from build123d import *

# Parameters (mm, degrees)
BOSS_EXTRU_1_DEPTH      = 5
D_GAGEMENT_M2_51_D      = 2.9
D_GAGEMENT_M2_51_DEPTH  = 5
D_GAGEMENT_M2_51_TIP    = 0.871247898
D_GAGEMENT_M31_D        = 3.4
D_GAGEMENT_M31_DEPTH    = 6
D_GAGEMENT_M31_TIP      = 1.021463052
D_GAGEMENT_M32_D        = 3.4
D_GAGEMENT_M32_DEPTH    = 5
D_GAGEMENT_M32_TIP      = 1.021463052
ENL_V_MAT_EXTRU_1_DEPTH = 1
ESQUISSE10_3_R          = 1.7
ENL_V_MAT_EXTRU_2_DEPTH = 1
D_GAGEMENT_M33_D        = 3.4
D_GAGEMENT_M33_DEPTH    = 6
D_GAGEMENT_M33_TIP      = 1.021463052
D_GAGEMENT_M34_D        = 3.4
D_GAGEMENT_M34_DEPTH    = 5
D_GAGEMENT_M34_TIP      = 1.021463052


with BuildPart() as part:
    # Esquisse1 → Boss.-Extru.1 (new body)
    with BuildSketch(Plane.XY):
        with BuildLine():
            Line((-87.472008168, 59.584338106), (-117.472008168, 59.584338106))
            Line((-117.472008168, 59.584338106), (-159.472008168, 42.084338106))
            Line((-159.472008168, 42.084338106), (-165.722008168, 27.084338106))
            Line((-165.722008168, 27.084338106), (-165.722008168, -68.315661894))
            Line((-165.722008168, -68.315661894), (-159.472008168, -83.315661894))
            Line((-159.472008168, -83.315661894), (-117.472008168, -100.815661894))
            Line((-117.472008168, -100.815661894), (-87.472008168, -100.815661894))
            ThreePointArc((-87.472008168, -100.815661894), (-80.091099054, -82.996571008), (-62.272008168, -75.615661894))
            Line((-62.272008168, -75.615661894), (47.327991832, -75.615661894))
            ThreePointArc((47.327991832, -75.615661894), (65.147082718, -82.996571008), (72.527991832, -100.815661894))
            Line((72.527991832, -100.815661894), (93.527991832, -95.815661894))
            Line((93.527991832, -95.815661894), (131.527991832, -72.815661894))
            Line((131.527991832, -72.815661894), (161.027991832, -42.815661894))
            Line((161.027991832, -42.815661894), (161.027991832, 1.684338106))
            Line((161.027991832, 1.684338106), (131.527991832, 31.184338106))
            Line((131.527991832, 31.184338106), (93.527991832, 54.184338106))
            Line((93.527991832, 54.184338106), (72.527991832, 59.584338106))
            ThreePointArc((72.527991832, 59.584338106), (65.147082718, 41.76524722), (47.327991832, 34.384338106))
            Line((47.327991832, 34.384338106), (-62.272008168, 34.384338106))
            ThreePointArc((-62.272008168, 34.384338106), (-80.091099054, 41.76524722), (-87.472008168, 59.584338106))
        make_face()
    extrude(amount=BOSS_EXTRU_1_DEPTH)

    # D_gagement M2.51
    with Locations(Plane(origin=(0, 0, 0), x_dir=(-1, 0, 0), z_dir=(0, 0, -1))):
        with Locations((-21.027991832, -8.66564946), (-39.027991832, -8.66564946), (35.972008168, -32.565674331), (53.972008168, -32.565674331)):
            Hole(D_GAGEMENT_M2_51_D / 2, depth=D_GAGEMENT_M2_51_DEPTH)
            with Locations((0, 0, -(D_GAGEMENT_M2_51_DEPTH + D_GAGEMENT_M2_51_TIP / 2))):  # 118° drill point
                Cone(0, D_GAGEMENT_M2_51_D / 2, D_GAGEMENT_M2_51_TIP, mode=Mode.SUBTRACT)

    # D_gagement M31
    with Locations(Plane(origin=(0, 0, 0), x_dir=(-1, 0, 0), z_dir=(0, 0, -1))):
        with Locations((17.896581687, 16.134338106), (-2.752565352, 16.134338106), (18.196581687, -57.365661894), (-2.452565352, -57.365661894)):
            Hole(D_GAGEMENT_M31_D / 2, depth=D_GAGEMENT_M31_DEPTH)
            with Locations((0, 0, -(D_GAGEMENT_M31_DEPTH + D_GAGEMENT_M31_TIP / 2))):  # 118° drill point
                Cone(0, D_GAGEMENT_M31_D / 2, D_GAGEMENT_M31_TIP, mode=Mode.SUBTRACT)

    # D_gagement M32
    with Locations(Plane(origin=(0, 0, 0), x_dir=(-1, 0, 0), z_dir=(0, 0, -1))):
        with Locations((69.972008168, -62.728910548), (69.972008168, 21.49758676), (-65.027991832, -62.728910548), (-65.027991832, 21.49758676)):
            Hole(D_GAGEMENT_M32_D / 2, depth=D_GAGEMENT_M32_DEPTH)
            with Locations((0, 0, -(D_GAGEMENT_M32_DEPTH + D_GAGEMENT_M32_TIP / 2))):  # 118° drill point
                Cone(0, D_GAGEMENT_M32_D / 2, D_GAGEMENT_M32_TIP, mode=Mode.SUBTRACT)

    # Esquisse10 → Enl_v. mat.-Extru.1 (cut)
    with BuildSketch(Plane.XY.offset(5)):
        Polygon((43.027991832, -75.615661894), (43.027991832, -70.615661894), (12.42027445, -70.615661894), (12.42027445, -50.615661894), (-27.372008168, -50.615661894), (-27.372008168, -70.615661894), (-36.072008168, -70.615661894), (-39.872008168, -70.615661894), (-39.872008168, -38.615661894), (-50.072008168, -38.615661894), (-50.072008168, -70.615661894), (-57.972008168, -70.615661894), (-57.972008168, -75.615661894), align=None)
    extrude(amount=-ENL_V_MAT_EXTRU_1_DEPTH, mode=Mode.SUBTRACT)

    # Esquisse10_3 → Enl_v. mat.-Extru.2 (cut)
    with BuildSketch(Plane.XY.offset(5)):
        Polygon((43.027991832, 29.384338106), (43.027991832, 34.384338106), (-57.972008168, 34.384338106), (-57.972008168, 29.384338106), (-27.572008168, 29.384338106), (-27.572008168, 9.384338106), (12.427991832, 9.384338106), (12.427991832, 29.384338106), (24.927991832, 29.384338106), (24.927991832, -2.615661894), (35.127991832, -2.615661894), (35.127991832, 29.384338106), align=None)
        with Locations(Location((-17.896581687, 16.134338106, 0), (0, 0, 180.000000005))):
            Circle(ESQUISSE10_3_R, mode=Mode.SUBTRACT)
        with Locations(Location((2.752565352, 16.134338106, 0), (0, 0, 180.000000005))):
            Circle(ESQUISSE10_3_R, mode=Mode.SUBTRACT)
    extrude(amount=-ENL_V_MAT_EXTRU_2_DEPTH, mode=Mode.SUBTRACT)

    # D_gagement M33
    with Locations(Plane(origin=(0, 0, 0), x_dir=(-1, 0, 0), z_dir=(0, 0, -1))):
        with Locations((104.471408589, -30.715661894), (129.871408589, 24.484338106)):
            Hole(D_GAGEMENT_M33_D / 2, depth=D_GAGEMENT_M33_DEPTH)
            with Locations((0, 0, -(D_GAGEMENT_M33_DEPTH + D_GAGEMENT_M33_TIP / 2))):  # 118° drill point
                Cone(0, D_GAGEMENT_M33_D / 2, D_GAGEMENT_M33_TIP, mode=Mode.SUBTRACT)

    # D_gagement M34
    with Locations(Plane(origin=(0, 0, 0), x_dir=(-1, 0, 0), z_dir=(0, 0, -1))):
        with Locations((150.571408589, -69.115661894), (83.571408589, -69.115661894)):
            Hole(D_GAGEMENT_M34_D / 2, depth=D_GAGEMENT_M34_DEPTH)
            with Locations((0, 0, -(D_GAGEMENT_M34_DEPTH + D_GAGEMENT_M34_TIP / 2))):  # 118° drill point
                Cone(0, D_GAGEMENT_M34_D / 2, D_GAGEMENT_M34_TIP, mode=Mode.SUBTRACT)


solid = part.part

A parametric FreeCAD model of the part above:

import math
import FreeCAD as App
import Part
import Sketcher
from FreeCAD import Vector
Q = App.Units.Quantity

doc = App.newDocument("Part")
body = doc.addObject("PartDesign::Body", "Body")

sketch1 = doc.addObject("Sketcher::SketchObject", "Sketch")
body.addObject(sketch1)
sketch1.AttachmentSupport = (doc.XY_Plane, [""])
sketch1.MapMode = "FlatFace"
sketch1.addGeometry([
    Part.LineSegment(Vector(-87.472008, 59.584338, 0), Vector(-117.472008, 59.584338, 0)),
    Part.LineSegment(Vector(-117.472008, 59.584338, 0), Vector(-159.472008, 42.084338, 0)),
    Part.LineSegment(Vector(-159.472008, 42.084338, 0), Vector(-165.722008, 27.084338, 0)),
    Part.LineSegment(Vector(-165.722008, 27.084338, 0), Vector(-165.722008, -68.315662, 0)),
    Part.LineSegment(Vector(-165.722008, -68.315662, 0), Vector(-159.472008, -83.315662, 0)),
    Part.LineSegment(Vector(-159.472008, -83.315662, 0), Vector(-117.472008, -100.815662, 0)),
    Part.LineSegment(Vector(-117.472008, -100.815662, 0), Vector(-87.472008, -100.815662, 0)),
    Part.ArcOfCircle(Part.Circle(Vector(-62.272008, -100.815662, 0), Vector(0, 0, 1), 25.2), math.radians(90), math.radians(180)),
    Part.LineSegment(Vector(-62.272008, -75.615662, 0), Vector(47.327992, -75.615662, 0)),
    Part.ArcOfCircle(Part.Circle(Vector(47.327992, -100.815662, 0), Vector(0, 0, 1), 25.2), math.radians(0), math.radians(90)),
    Part.LineSegment(Vector(72.527992, -100.815662, 0), Vector(93.527992, -95.815662, 0)),
    Part.LineSegment(Vector(93.527992, -95.815662, 0), Vector(131.527992, -72.815662, 0)),
    Part.LineSegment(Vector(131.527992, -72.815662, 0), Vector(161.027992, -42.815662, 0)),
    Part.LineSegment(Vector(161.027992, -42.815662, 0), Vector(161.027992, 1.684338, 0)),
    Part.LineSegment(Vector(161.027992, 1.684338, 0), Vector(131.527992, 31.184338, 0)),
    Part.LineSegment(Vector(131.527992, 31.184338, 0), Vector(93.527992, 54.184338, 0)),
    Part.LineSegment(Vector(93.527992, 54.184338, 0), Vector(72.527992, 59.584338, 0)),
    Part.ArcOfCircle(Part.Circle(Vector(47.327992, 59.584338, 0), Vector(0, 0, 1), 25.2), math.radians(-90), math.radians(0)),
    Part.LineSegment(Vector(47.327992, 34.384338, 0), Vector(-62.272008, 34.384338, 0)),
    Part.ArcOfCircle(Part.Circle(Vector(-62.272008, 59.584338, 0), Vector(0, 0, 1), 25.2), math.radians(180), math.radians(270)),
], False)
sketch1.addConstraint([
    Sketcher.Constraint("Coincident", 0, 2, 1, 1),
    Sketcher.Constraint("Coincident", 1, 2, 2, 1),
    Sketcher.Constraint("Coincident", 2, 2, 3, 1),
    Sketcher.Constraint("Coincident", 3, 2, 4, 1),
    Sketcher.Constraint("Coincident", 4, 2, 5, 1),
    Sketcher.Constraint("Coincident", 5, 2, 6, 1),
    Sketcher.Constraint("Coincident", 6, 2, 7, 2),
    Sketcher.Constraint("Tangent", 7, 1, 8, 1),
    Sketcher.Constraint("Tangent", 8, 2, 9, 2),
    Sketcher.Constraint("Coincident", 9, 1, 10, 1),
    Sketcher.Constraint("Coincident", 10, 2, 11, 1),
    Sketcher.Constraint("Coincident", 11, 2, 12, 1),
    Sketcher.Constraint("Coincident", 12, 2, 13, 1),
    Sketcher.Constraint("Coincident", 13, 2, 14, 1),
    Sketcher.Constraint("Coincident", 14, 2, 15, 1),
    Sketcher.Constraint("Coincident", 15, 2, 16, 1),
    Sketcher.Constraint("Coincident", 16, 2, 17, 2),
    Sketcher.Constraint("Tangent", 17, 1, 18, 1),
    Sketcher.Constraint("Tangent", 18, 2, 19, 2),
    Sketcher.Constraint("Coincident", 19, 1, 0, 1),
    Sketcher.Constraint("Horizontal", 0),
    Sketcher.Constraint("Vertical", 3),
    Sketcher.Constraint("Horizontal", 6),
    Sketcher.Constraint("Horizontal", 8),
    Sketcher.Constraint("Vertical", 13),
    Sketcher.Constraint("Horizontal", 18),
    Sketcher.Constraint("Equal", 7, 9),
    Sketcher.Constraint("Equal", 9, 17),
    Sketcher.Constraint("Equal", 17, 19),
    Sketcher.Constraint("Perpendicular", 1, 4),
    Sketcher.Constraint("Perpendicular", 2, 5),
    Sketcher.Constraint("Horizontal", 19, 3, 0, 2),
    Sketcher.Constraint("Horizontal", 9, 3, 5, 2),
    Sketcher.Constraint("Horizontal", 6, 2, 9, 1),
    Sketcher.Constraint("Horizontal", 0, 2, 16, 2),
    Sketcher.Constraint("Vertical", 9, 3, 17, 3),
    Sketcher.Constraint("Vertical", 7, 3, 19, 3),
    Sketcher.Constraint("Vertical", 1, 2, 4, 2),
    Sketcher.Constraint("Vertical", 0, 2, 5, 2),
    Sketcher.Constraint("Vertical", 11, 2, 14, 2),
    Sketcher.Constraint("Vertical", 10, 2, 15, 2),
    Sketcher.Constraint("Equal", 2, 4),
    Sketcher.Constraint("Equal", 11, 15),
    Sketcher.Constraint("Radius", 7, Q("25.2 mm")),
    Sketcher.Constraint("DistanceX", 0, 2, 0, 1, Q("30 mm")),
    Sketcher.Constraint("Angle", 14, Q("135 deg")),
    Sketcher.Constraint("DistanceX", 8, 1, 8, 2, Q("109.6 mm")),
    Sketcher.Constraint("DistanceY", 3, 2, 3, 1, Q("95.4 mm")),
    Sketcher.Constraint("DistanceY", 13, 1, 13, 2, Q("44.5 mm")),
    Sketcher.Constraint("DistanceX", 1, 2, 0, 2, Q("42 mm")),
    Sketcher.Constraint("DistanceY", 2, 2, 1, 2, Q("15 mm")),
    Sketcher.Constraint("DistanceX", 9, 1, 10, 2, Q("21 mm")),
    Sketcher.Constraint("DistanceY", 9, 1, 10, 2, Q("5 mm")),
    Sketcher.Constraint("DistanceX", 10, 2, 11, 2, Q("38 mm")),
    Sketcher.Constraint("DistanceY", 10, 2, 11, 2, Q("23 mm")),
    Sketcher.Constraint("DistanceY", 11, 2, 12, 2, Q("30 mm")),
    Sketcher.Constraint("DistanceY", 12, 2, 14, 2, Q("74 mm")),
    Sketcher.Constraint("DistanceY", 8, 2, 17, 1, Q("110 mm")),
    Sketcher.Constraint("DistanceX", 7, 3, -1, 1, Q("62.272008 mm")),
    Sketcher.Constraint("DistanceY", 7, 3, -1, 1, Q("100.815662 mm")),
])
pad1 = doc.addObject("PartDesign::Pad", "Pad")
body.addObject(pad1)
pad1.Profile = sketch1
pad1.Length = 5

sketch2 = doc.addObject("Sketcher::SketchObject", "Sketch001")
body.addObject(sketch2)
sketch2.AttachmentSupport = (doc.XY_Plane, [""])
sketch2.MapMode = "FlatFace"
sketch2.addGeometry([
    Part.Circle(Vector(21.027992, -8.665649, 0), Vector(0, 0, 1), 1.45),
    Part.Circle(Vector(39.027992, -8.665649, 0), Vector(0, 0, 1), 1.45),
    Part.Circle(Vector(-35.972008, -32.565674, 0), Vector(0, 0, 1), 1.45),
    Part.Circle(Vector(-53.972008, -32.565674, 0), Vector(0, 0, 1), 1.45),
], False)
sketch2.addConstraint([
    Sketcher.Constraint("Equal", 0, 1),
    Sketcher.Constraint("Equal", 1, 2),
    Sketcher.Constraint("Equal", 2, 3),
    Sketcher.Constraint("Horizontal", 0, 3, 1, 3),
    Sketcher.Constraint("Horizontal", 2, 3, 3, 3),
    Sketcher.Constraint("Diameter", 0, Q("2.9 mm")),
    Sketcher.Constraint("DistanceX", 0, 3, 1, 3, Q("18 mm")),
    Sketcher.Constraint("DistanceX", 2, 3, 0, 3, Q("57 mm")),
    Sketcher.Constraint("DistanceX", 3, 3, 2, 3, Q("18 mm")),
    Sketcher.Constraint("DistanceX", -1, 1, 0, 3, Q("21.027992 mm")),
    Sketcher.Constraint("DistanceY", 0, 3, -1, 1, Q("8.665649 mm")),
    Sketcher.Constraint("DistanceY", 2, 3, -1, 1, Q("32.565674 mm")),
])
doc.recompute()
hole = doc.addObject("PartDesign::Hole", "Hole")
body.addObject(hole)
hole.Profile = sketch2
hole.ThreadType = "None"
hole.Diameter = 2.9
hole.DepthType = "Dimension"
hole.Depth = 5
hole.DrillPoint = "Angled"
hole.DrillPointAngle = 118
hole.Reversed = True

sketch3 = doc.addObject("Sketcher::SketchObject", "Sketch002")
body.addObject(sketch3)
sketch3.AttachmentSupport = (doc.XY_Plane, [""])
sketch3.MapMode = "FlatFace"
sketch3.addGeometry([
    Part.Circle(Vector(-17.896582, 16.134338, 0), Vector(0, 0, 1), 1.7),
    Part.Circle(Vector(2.752565, 16.134338, 0), Vector(0, 0, 1), 1.7),
    Part.Circle(Vector(-18.196582, -57.365662, 0), Vector(0, 0, 1), 1.7),
    Part.Circle(Vector(2.452565, -57.365662, 0), Vector(0, 0, 1), 1.7),
], False)
sketch3.addConstraint([
    Sketcher.Constraint("Equal", 0, 1),
    Sketcher.Constraint("Equal", 1, 2),
    Sketcher.Constraint("Equal", 2, 3),
    Sketcher.Constraint("Horizontal", 0, 3, 1, 3),
    Sketcher.Constraint("Horizontal", 2, 3, 3, 3),
    Sketcher.Constraint("Diameter", 0, Q("3.4 mm")),
    Sketcher.Constraint("DistanceX", 2, 3, 0, 3, Q("0.3 mm")),
    Sketcher.Constraint("DistanceY", 2, 3, 0, 3, Q("73.5 mm")),
    Sketcher.Constraint("DistanceX", 3, 3, 1, 3, Q("0.3 mm")),
    Sketcher.Constraint("DistanceX", 0, 3, -1, 1, Q("17.896582 mm")),
    Sketcher.Constraint("DistanceY", -1, 1, 0, 3, Q("16.134338 mm")),
    Sketcher.Constraint("DistanceX", -1, 1, 1, 3, Q("2.752565 mm")),
])
doc.recompute()
hole2 = doc.addObject("PartDesign::Hole", "Hole001")
body.addObject(hole2)
hole2.Profile = sketch3
hole2.ThreadType = "None"
hole2.Diameter = 3.4
hole2.DepthType = "Dimension"
hole2.Depth = 6
hole2.DrillPoint = "Angled"
hole2.DrillPointAngle = 118
hole2.Reversed = True

sketch4 = doc.addObject("Sketcher::SketchObject", "Sketch003")
body.addObject(sketch4)
sketch4.AttachmentSupport = (doc.XY_Plane, [""])
sketch4.MapMode = "FlatFace"
sketch4.addGeometry([
    Part.Circle(Vector(-69.972008, -62.728911, 0), Vector(0, 0, 1), 1.7),
    Part.Circle(Vector(-69.972008, 21.497587, 0), Vector(0, 0, 1), 1.7),
    Part.Circle(Vector(65.027992, -62.728911, 0), Vector(0, 0, 1), 1.7),
    Part.Circle(Vector(65.027992, 21.497587, 0), Vector(0, 0, 1), 1.7),
], False)
sketch4.addConstraint([
    Sketcher.Constraint("Equal", 0, 1),
    Sketcher.Constraint("Equal", 1, 2),
    Sketcher.Constraint("Equal", 2, 3),
    Sketcher.Constraint("Horizontal", 0, 3, 2, 3),
    Sketcher.Constraint("Horizontal", 1, 3, 3, 3),
    Sketcher.Constraint("Vertical", 0, 3, 1, 3),
    Sketcher.Constraint("Vertical", 2, 3, 3, 3),
    Sketcher.Constraint("Diameter", 0, Q("3.4 mm")),
    Sketcher.Constraint("DistanceX", 0, 3, 2, 3, Q("135 mm")),
    Sketcher.Constraint("DistanceX", 0, 3, -1, 1, Q("69.972008 mm")),
    Sketcher.Constraint("DistanceY", 0, 3, -1, 1, Q("62.728911 mm")),
    Sketcher.Constraint("DistanceY", -1, 1, 1, 3, Q("21.497587 mm")),
])
doc.recompute()
hole3 = doc.addObject("PartDesign::Hole", "Hole002")
body.addObject(hole3)
hole3.Profile = sketch4
hole3.ThreadType = "None"
hole3.Diameter = 3.4
hole3.DepthType = "Dimension"
hole3.Depth = 5
hole3.DrillPoint = "Angled"
hole3.DrillPointAngle = 118
hole3.Reversed = True

sketch5 = doc.addObject("Sketcher::SketchObject", "Sketch004")
body.addObject(sketch5)
sketch5.AttachmentSupport = (doc.XY_Plane, [""])
sketch5.MapMode = "FlatFace"
sketch5.AttachmentOffset = App.Placement(Vector(0, 0, 5), App.Rotation())
sketch5.addGeometry([
    Part.LineSegment(Vector(43.027992, -75.615662, 0), Vector(43.027992, -70.615662, 0)),
    Part.LineSegment(Vector(43.027992, -70.615662, 0), Vector(12.420274, -70.615662, 0)),
    Part.LineSegment(Vector(12.420274, -70.615662, 0), Vector(12.420274, -50.615662, 0)),
    Part.LineSegment(Vector(12.420274, -50.615662, 0), Vector(-27.372008, -50.615662, 0)),
    Part.LineSegment(Vector(-27.372008, -50.615662, 0), Vector(-27.372008, -70.615662, 0)),
    Part.LineSegment(Vector(-27.372008, -70.615662, 0), Vector(-39.872008, -70.615662, 0)),
    Part.LineSegment(Vector(-39.872008, -70.615662, 0), Vector(-39.872008, -38.615662, 0)),
    Part.LineSegment(Vector(-39.872008, -38.615662, 0), Vector(-50.072008, -38.615662, 0)),
    Part.LineSegment(Vector(-50.072008, -38.615662, 0), Vector(-50.072008, -70.615662, 0)),
    Part.LineSegment(Vector(-50.072008, -70.615662, 0), Vector(-57.972008, -70.615662, 0)),
    Part.LineSegment(Vector(-57.972008, -70.615662, 0), Vector(-57.972008, -75.615662, 0)),
    Part.LineSegment(Vector(-57.972008, -75.615662, 0), Vector(43.027992, -75.615662, 0)),
], False)
sketch5.addConstraint([
    Sketcher.Constraint("Coincident", 0, 2, 1, 1),
    Sketcher.Constraint("Coincident", 1, 2, 2, 1),
    Sketcher.Constraint("Coincident", 2, 2, 3, 1),
    Sketcher.Constraint("Coincident", 3, 2, 4, 1),
    Sketcher.Constraint("Coincident", 4, 2, 5, 1),
    Sketcher.Constraint("Coincident", 5, 2, 6, 1),
    Sketcher.Constraint("Coincident", 6, 2, 7, 1),
    Sketcher.Constraint("Coincident", 7, 2, 8, 1),
    Sketcher.Constraint("Coincident", 8, 2, 9, 1),
    Sketcher.Constraint("Coincident", 9, 2, 10, 1),
    Sketcher.Constraint("Coincident", 10, 2, 11, 1),
    Sketcher.Constraint("Coincident", 11, 2, 0, 1),
    Sketcher.Constraint("Vertical", 0),
    Sketcher.Constraint("Horizontal", 1),
    Sketcher.Constraint("Vertical", 2),
    Sketcher.Constraint("Horizontal", 3),
    Sketcher.Constraint("Vertical", 4),
    Sketcher.Constraint("Horizontal", 5),
    Sketcher.Constraint("Vertical", 6),
    Sketcher.Constraint("Horizontal", 7),
    Sketcher.Constraint("Vertical", 8),
    Sketcher.Constraint("Horizontal", 9),
    Sketcher.Constraint("Vertical", 10),
    Sketcher.Constraint("Horizontal", 11),
    Sketcher.Constraint("Horizontal", 1, 2, 4, 2),
    Sketcher.Constraint("Horizontal", 5, 2, 8, 2),
    Sketcher.Constraint("DistanceX", 11, 1, 11, 2, Q("101 mm")),
    Sketcher.Constraint("DistanceY", 0, 1, 0, 2, Q("5 mm")),
    Sketcher.Constraint("DistanceY", 2, 1, 2, 2, Q("20 mm")),
    Sketcher.Constraint("DistanceY", 6, 1, 6, 2, Q("32 mm")),
    Sketcher.Constraint("DistanceX", 5, 2, 5, 1, Q("12.5 mm")),
    Sketcher.Constraint("DistanceX", 7, 2, 7, 1, Q("10.2 mm")),
    Sketcher.Constraint("DistanceX", 9, 2, 9, 1, Q("7.9 mm")),
    Sketcher.Constraint("DistanceX", 1, 2, 1, 1, Q("30.607717 mm")),
    Sketcher.Constraint("DistanceX", -1, 1, 0, 2, Q("43.027992 mm")),
    Sketcher.Constraint("DistanceY", 0, 2, -1, 1, Q("70.615662 mm")),
])
pocket1 = doc.addObject("PartDesign::Pocket", "Pocket")
body.addObject(pocket1)
pocket1.Profile = sketch5
pocket1.Length = 1

sketch6 = doc.addObject("Sketcher::SketchObject", "Sketch005")
body.addObject(sketch6)
sketch6.AttachmentSupport = (doc.XY_Plane, [""])
sketch6.MapMode = "FlatFace"
sketch6.AttachmentOffset = App.Placement(Vector(0, 0, 5), App.Rotation())
sketch6.addGeometry([
    Part.LineSegment(Vector(43.027992, 29.384338, 0), Vector(43.027992, 34.384338, 0)),
    Part.LineSegment(Vector(43.027992, 34.384338, 0), Vector(-57.972008, 34.384338, 0)),
    Part.LineSegment(Vector(-57.972008, 34.384338, 0), Vector(-57.972008, 29.384338, 0)),
    Part.LineSegment(Vector(-57.972008, 29.384338, 0), Vector(-27.572008, 29.384338, 0)),
    Part.LineSegment(Vector(-27.572008, 29.384338, 0), Vector(-27.572008, 9.384338, 0)),
    Part.LineSegment(Vector(-27.572008, 9.384338, 0), Vector(12.427992, 9.384338, 0)),
    Part.LineSegment(Vector(12.427992, 9.384338, 0), Vector(12.427992, 29.384338, 0)),
    Part.LineSegment(Vector(12.427992, 29.384338, 0), Vector(24.927992, 29.384338, 0)),
    Part.LineSegment(Vector(24.927992, 29.384338, 0), Vector(24.927992, -2.615662, 0)),
    Part.LineSegment(Vector(24.927992, -2.615662, 0), Vector(35.127992, -2.615662, 0)),
    Part.LineSegment(Vector(35.127992, -2.615662, 0), Vector(35.127992, 29.384338, 0)),
    Part.LineSegment(Vector(35.127992, 29.384338, 0), Vector(43.027992, 29.384338, 0)),
    Part.Circle(Vector(-17.896582, 16.134338, 0), Vector(0, 0, 1), 1.7),
    Part.Circle(Vector(2.752565, 16.134338, 0), Vector(0, 0, 1), 1.7),
], False)
sketch6.addConstraint([
    Sketcher.Constraint("Coincident", 0, 2, 1, 1),
    Sketcher.Constraint("Coincident", 1, 2, 2, 1),
    Sketcher.Constraint("Coincident", 2, 2, 3, 1),
    Sketcher.Constraint("Coincident", 3, 2, 4, 1),
    Sketcher.Constraint("Coincident", 4, 2, 5, 1),
    Sketcher.Constraint("Coincident", 5, 2, 6, 1),
    Sketcher.Constraint("Coincident", 6, 2, 7, 1),
    Sketcher.Constraint("Coincident", 7, 2, 8, 1),
    Sketcher.Constraint("Coincident", 8, 2, 9, 1),
    Sketcher.Constraint("Coincident", 9, 2, 10, 1),
    Sketcher.Constraint("Coincident", 10, 2, 11, 1),
    Sketcher.Constraint("Coincident", 11, 2, 0, 1),
    Sketcher.Constraint("Vertical", 0),
    Sketcher.Constraint("Horizontal", 1),
    Sketcher.Constraint("Vertical", 2),
    Sketcher.Constraint("Horizontal", 3),
    Sketcher.Constraint("Vertical", 4),
    Sketcher.Constraint("Horizontal", 5),
    Sketcher.Constraint("Vertical", 6),
    Sketcher.Constraint("Horizontal", 7),
    Sketcher.Constraint("Vertical", 8),
    Sketcher.Constraint("Horizontal", 9),
    Sketcher.Constraint("Vertical", 10),
    Sketcher.Constraint("Horizontal", 11),
    Sketcher.Constraint("Equal", 12, 13),
    Sketcher.Constraint("Horizontal", 12, 3, 13, 3),
    Sketcher.Constraint("Horizontal", 3, 2, 6, 2),
    Sketcher.Constraint("Horizontal", 7, 2, 10, 2),
    Sketcher.Constraint("Diameter", 12, Q("3.4 mm")),
    Sketcher.Constraint("DistanceX", 1, 2, 1, 1, Q("101 mm")),
    Sketcher.Constraint("DistanceX", 5, 1, 5, 2, Q("40 mm")),
    Sketcher.Constraint("DistanceY", 0, 1, 0, 2, Q("5 mm")),
    Sketcher.Constraint("DistanceY", 4, 2, 4, 1, Q("20 mm")),
    Sketcher.Constraint("DistanceY", 8, 2, 8, 1, Q("32 mm")),
    Sketcher.Constraint("DistanceX", 3, 1, 3, 2, Q("30.4 mm")),
    Sketcher.Constraint("DistanceX", 7, 1, 7, 2, Q("12.5 mm")),
    Sketcher.Constraint("DistanceX", 9, 1, 9, 2, Q("10.2 mm")),
    Sketcher.Constraint("DistanceY", 13, 3, 0, 2, Q("18.25 mm")),
    Sketcher.Constraint("DistanceX", 12, 3, -1, 1, Q("17.896582 mm")),
    Sketcher.Constraint("DistanceY", -1, 1, 12, 3, Q("16.134338 mm")),
    Sketcher.Constraint("DistanceX", -1, 1, 0, 2, Q("43.027992 mm")),
    Sketcher.Constraint("DistanceX", -1, 1, 13, 3, Q("2.752565 mm")),
])
pocket2 = doc.addObject("PartDesign::Pocket", "Pocket001")
body.addObject(pocket2)
pocket2.Profile = sketch6
pocket2.Length = 1

sketch7 = doc.addObject("Sketcher::SketchObject", "Sketch006")
body.addObject(sketch7)
sketch7.AttachmentSupport = (doc.XY_Plane, [""])
sketch7.MapMode = "FlatFace"
sketch7.addGeometry([
    Part.Circle(Vector(-104.471409, -30.715662, 0), Vector(0, 0, 1), 1.7),
    Part.Circle(Vector(-129.871409, 24.484338, 0), Vector(0, 0, 1), 1.7),
], False)
sketch7.addConstraint([
    Sketcher.Constraint("Equal", 0, 1),
    Sketcher.Constraint("Diameter", 0, Q("3.4 mm")),
    Sketcher.Constraint("DistanceX", 1, 3, 0, 3, Q("25.4 mm")),
    Sketcher.Constraint("DistanceY", 0, 3, 1, 3, Q("55.2 mm")),
    Sketcher.Constraint("DistanceX", 0, 3, -1, 1, Q("104.471409 mm")),
    Sketcher.Constraint("DistanceY", 0, 3, -1, 1, Q("30.715662 mm")),
])
doc.recompute()
hole4 = doc.addObject("PartDesign::Hole", "Hole003")
body.addObject(hole4)
hole4.Profile = sketch7
hole4.ThreadType = "None"
hole4.Diameter = 3.4
hole4.DepthType = "Dimension"
hole4.Depth = 6
hole4.DrillPoint = "Angled"
hole4.DrillPointAngle = 118
hole4.Reversed = True

sketch8 = doc.addObject("Sketcher::SketchObject", "Sketch007")
body.addObject(sketch8)
sketch8.AttachmentSupport = (doc.XY_Plane, [""])
sketch8.MapMode = "FlatFace"
sketch8.addGeometry([
    Part.Circle(Vector(-150.571409, -69.115662, 0), Vector(0, 0, 1), 1.7),
    Part.Circle(Vector(-83.571409, -69.115662, 0), Vector(0, 0, 1), 1.7),
], False)
sketch8.addConstraint([
    Sketcher.Constraint("Equal", 0, 1),
    Sketcher.Constraint("Horizontal", 0, 3, 1, 3),
    Sketcher.Constraint("Diameter", 0, Q("3.4 mm")),
    Sketcher.Constraint("DistanceX", 0, 3, 1, 3, Q("67 mm")),
    Sketcher.Constraint("DistanceX", 0, 3, -1, 1, Q("150.571409 mm")),
    Sketcher.Constraint("DistanceY", 0, 3, -1, 1, Q("69.115662 mm")),
])
doc.recompute()
hole5 = doc.addObject("PartDesign::Hole", "Hole004")
body.addObject(hole5)
hole5.Profile = sketch8
hole5.ThreadType = "None"
hole5.Diameter = 3.4
hole5.DepthType = "Dimension"
hole5.Depth = 5
hole5.DrillPoint = "Angled"
hole5.DrillPointAngle = 118
hole5.Reversed = True

doc.recompute()
